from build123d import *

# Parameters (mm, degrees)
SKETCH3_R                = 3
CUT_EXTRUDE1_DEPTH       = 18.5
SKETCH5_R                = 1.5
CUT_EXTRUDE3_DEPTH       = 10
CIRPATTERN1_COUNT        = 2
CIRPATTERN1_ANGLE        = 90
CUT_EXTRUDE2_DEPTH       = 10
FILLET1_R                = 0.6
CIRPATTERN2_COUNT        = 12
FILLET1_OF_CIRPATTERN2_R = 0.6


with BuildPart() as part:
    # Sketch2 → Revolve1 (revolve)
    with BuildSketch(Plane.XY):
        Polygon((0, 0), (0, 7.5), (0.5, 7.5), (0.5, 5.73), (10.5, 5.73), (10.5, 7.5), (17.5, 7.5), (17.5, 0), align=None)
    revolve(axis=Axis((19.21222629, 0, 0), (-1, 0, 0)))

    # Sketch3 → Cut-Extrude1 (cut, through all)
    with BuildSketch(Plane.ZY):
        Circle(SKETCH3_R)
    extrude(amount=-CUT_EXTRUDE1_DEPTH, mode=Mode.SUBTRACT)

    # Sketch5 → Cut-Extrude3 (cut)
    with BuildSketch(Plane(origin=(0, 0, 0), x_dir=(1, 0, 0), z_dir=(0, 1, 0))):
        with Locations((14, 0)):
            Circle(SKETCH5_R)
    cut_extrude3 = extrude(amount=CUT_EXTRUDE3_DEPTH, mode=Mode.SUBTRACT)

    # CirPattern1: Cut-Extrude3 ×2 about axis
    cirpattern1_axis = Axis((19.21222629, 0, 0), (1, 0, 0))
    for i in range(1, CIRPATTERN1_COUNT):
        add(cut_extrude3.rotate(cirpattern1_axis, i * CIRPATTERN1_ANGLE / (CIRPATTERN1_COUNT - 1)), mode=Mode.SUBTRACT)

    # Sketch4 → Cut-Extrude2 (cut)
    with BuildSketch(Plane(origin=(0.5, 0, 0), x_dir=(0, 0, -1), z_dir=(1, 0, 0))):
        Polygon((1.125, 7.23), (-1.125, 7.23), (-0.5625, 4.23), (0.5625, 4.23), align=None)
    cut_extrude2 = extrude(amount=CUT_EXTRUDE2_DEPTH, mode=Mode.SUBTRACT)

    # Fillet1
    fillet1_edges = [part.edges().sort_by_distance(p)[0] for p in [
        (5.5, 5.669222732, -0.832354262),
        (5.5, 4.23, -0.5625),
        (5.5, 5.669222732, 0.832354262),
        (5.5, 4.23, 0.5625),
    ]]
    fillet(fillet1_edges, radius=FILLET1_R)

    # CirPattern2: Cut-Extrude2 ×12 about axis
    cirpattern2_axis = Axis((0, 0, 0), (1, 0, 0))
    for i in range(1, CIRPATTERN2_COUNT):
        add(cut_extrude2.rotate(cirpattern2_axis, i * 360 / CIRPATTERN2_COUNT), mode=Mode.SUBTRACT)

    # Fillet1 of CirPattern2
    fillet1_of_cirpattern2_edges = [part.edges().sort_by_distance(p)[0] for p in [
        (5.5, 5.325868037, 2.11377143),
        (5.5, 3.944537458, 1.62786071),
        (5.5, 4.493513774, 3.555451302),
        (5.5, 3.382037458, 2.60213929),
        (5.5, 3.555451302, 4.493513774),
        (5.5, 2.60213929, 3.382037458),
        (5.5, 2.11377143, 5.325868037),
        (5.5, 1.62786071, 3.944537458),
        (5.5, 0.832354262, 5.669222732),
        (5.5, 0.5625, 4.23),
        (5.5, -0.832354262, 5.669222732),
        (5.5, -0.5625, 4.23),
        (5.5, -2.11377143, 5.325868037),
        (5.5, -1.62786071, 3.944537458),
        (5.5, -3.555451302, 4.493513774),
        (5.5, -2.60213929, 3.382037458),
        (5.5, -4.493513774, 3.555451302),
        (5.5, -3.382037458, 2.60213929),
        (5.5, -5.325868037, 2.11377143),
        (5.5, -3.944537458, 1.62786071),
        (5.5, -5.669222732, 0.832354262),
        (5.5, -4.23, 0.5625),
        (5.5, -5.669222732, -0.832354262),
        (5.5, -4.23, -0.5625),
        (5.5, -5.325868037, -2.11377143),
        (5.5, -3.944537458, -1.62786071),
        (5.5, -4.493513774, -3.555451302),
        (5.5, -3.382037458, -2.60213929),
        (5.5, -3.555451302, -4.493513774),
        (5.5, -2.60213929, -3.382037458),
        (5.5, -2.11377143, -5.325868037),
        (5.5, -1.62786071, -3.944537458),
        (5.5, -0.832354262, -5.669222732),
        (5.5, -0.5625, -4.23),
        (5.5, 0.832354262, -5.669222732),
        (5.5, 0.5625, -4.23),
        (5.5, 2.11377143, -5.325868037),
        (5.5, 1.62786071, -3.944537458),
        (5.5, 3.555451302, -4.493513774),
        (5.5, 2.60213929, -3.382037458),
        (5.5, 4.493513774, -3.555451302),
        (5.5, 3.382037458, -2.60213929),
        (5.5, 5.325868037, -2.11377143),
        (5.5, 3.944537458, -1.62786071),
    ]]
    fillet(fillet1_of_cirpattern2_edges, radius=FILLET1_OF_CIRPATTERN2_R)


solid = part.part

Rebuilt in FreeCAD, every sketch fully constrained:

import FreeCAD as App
import Part
import Sketcher

V = App.Vector
Q = App.Units.Quantity


def edges_at(feature, points):
    """Names of the edges that pass closest to the given points."""
    edges = feature.Shape.Edges
    near = lambda p: min(range(len(edges)), key=lambda i: edges[i].distToShape(Part.Vertex(*p))[0])
    return sorted({f"Edge{near(p) + 1}" for p in points})


def add_polygon(sketch, points):
    """Adds a closed chain of lines whose ends are joined by coincident constraints."""
    first, n = sketch.GeometryCount, len(points)
    for a, b in zip(points, points[1:] + points[:1]):
        sketch.addGeometry(Part.LineSegment(App.Vector(*a, 0), App.Vector(*b, 0)), False)
    for i in range(n):
        sketch.addConstraint(Sketcher.Constraint("Coincident", first + i, 2, first + (i + 1) % n, 1))

doc = App.newDocument("Part")
body = doc.addObject("PartDesign::Body", "Body")

# Sketch on XY plane
sketch1 = doc.addObject("Sketcher::SketchObject", "Sketch")
body.addObject(sketch1)
sketch1.AttachmentSupport = (doc.XY_Plane, [""])
sketch1.MapMode = "FlatFace"
add_polygon(sketch1, [(0, 7.5), (0, 0), (17.5, 0), (17.5, 7.5), (10.5, 7.5), (10.5, 5.7), (0.5, 5.7), (0.5, 7.5)])  # lines 0-7
sketch1.addConstraint(Sketcher.Constraint("Vertical", 0))
sketch1.addConstraint(Sketcher.Constraint("Horizontal", 1))
sketch1.addConstraint(Sketcher.Constraint("Vertical", 2))
sketch1.addConstraint(Sketcher.Constraint("Horizontal", 3))
sketch1.addConstraint(Sketcher.Constraint("Vertical", 4))
sketch1.addConstraint(Sketcher.Constraint("Horizontal", 5))
sketch1.addConstraint(Sketcher.Constraint("Vertical", 6))
sketch1.addConstraint(Sketcher.Constraint("Horizontal", 7))
sketch1.addConstraint(Sketcher.Constraint("Coincident", 0, 2, -1, 1))
sketch1.addConstraint(Sketcher.Constraint("Horizontal", 3, 2, 6, 2))
sketch1.addConstraint(Sketcher.Constraint("DistanceX", 3, 2, 3, 1, Q("7 mm")))
sketch1.addConstraint(Sketcher.Constraint("DistanceX", 5, 2, 5, 1, Q("10 mm")))
sketch1.addConstraint(Sketcher.Constraint("DistanceX", 1, 1, 1, 2, Q("17.5 mm")))
sketch1.addConstraint(Sketcher.Constraint("DistanceY", 0, 2, 0, 1, Q("7.5 mm")))
sketch1.addConstraint(Sketcher.Constraint("DistanceY", 4, 2, 4, 1, Q("1.77 mm")))
revolution = doc.addObject("PartDesign::Revolution", "Revolution")
body.addObject(revolution)
revolution.Profile = sketch1
revolution.ReferenceAxis = (sketch1, ["H_Axis"])
revolution.Angle = 360

# Sketch on YZ plane
sketch2 = doc.addObject("Sketcher::SketchObject", "Sketch001")
body.addObject(sketch2)
sketch2.AttachmentSupport = (doc.YZ_Plane, [""])
sketch2.MapMode = "FlatFace"
sketch2.addGeometry(Part.Circle(V(0, 0, 0), V(0, 0, 1), 3), False)
sketch2.addConstraint(Sketcher.Constraint("Coincident", 0, 3, -1, 1))
sketch2.addConstraint(Sketcher.Constraint("Diameter", 0, Q("6 mm")))
pocket1 = doc.addObject("PartDesign::Pocket", "Pocket")
body.addObject(pocket1)
pocket1.Profile = sketch2
pocket1.Type = "ThroughAll"
pocket1.Reversed = True

# Sketch on XZ plane
sketch3 = doc.addObject("Sketcher::SketchObject", "Sketch002")
body.addObject(sketch3)
sketch3.AttachmentSupport = (doc.XZ_Plane, [""])
sketch3.MapMode = "FlatFace"
sketch3.addGeometry(Part.Circle(V(14, 0, 0), V(0, 0, 1), 1.5), False)
sketch3.addConstraint(Sketcher.Constraint("PointOnObject", 0, 3, -1))
sketch3.addConstraint(Sketcher.Constraint("Diameter", 0, Q("3 mm")))
sketch3.addConstraint(Sketcher.Constraint("DistanceX", -1, 1, 0, 3, Q("14 mm")))
pocket2 = doc.addObject("PartDesign::Pocket", "Pocket001")
body.addObject(pocket2)
pocket2.Profile = sketch3
pocket2.Length = 10
doc.recompute()

polarpattern = doc.addObject("PartDesign::PolarPattern", "PolarPattern")
body.addObject(polarpattern)
polarpattern.Originals = [pocket2]
polarpattern.Axis = (doc.X_Axis, [""])
polarpattern.Angle = 90
polarpattern.Occurrences = 2
body.Tip = polarpattern

# Sketch on YZ plane
sketch4 = doc.addObject("Sketcher::SketchObject", "Sketch003")
body.addObject(sketch4)
sketch4.AttachmentSupport = (doc.YZ_Plane, [""])
sketch4.MapMode = "FlatFace"
sketch4.AttachmentOffset = App.Placement(V(0, 0, 0.5), App.Rotation())
add_polygon(sketch4, [(7.2, -1.1), (7.2, 1.1), (4.2, 0.6), (4.2, -0.6)])  # lines 0-3
sketch4.addConstraint(Sketcher.Constraint("Vertical", 0))
sketch4.addConstraint(Sketcher.Constraint("Vertical", 2))
sketch4.addConstraint(Sketcher.Constraint("Equal", 1, 3))
sketch4.addConstraint(Sketcher.Constraint("DistanceX", 1, 2, 0, 2, Q("3 mm")))
sketch4.addConstraint(Sketcher.Constraint("DistanceY", 0, 1, 0, 2, Q("2.25 mm")))
sketch4.addConstraint(Sketcher.Constraint("DistanceY", 2, 2, 2, 1, Q("1.125 mm")))
sketch4.addConstraint(Sketcher.Constraint("DistanceX", -1, 1, 0, 2, Q("7.23 mm")))
sketch4.addConstraint(Sketcher.Constraint("DistanceY", -1, 1, 0, 2, Q("1.125 mm")))
pocket3 = doc.addObject("PartDesign::Pocket", "Pocket002")
body.addObject(pocket3)
pocket3.Profile = sketch4
pocket3.Length = 10
pocket3.Reversed = True
doc.recompute()

fillet = doc.addObject("PartDesign::Fillet", "Fillet")
body.addObject(fillet)
fillet.Base = (pocket3, edges_at(pocket3, [
    (5.5, 5.669, -0.832),
    (5.5, 4.23, -0.562),
    (5.5, 5.669, 0.832),
    (5.5, 4.23, 0.562),
]))
fillet.Radius = 0.6
doc.recompute()

polarpattern2 = doc.addObject("PartDesign::PolarPattern", "PolarPattern001")
body.addObject(polarpattern2)
polarpattern2.Originals = [pocket3]
polarpattern2.Axis = (doc.X_Axis, [""])
polarpattern2.Angle = 360
polarpattern2.Occurrences = 12
body.Tip = polarpattern2
doc.recompute()

fillet2 = doc.addObject("PartDesign::Fillet", "Fillet001")
body.addObject(fillet2)
fillet2.Base = (polarpattern2, edges_at(polarpattern2, [
    (5.5, 5.326, 2.114),
    (5.5, 3.945, 1.628),
    (5.5, 4.494, 3.555),
    (5.5, 3.382, 2.602),
    (5.5, 3.555, 4.494),
    (5.5, 2.602, 3.382),
    (5.5, 2.114, 5.326),
    (5.5, 1.628, 3.945),
    (5.5, 0.832, 5.669),
    (5.5, 0.562, 4.23),
    (5.5, -0.832, 5.669),
    (5.5, -0.562, 4.23),
    (5.5, -2.114, 5.326),
    (5.5, -1.628, 3.945),
    (5.5, -3.555, 4.494),
    (5.5, -2.602, 3.382),
    (5.5, -4.494, 3.555),
    (5.5, -3.382, 2.602),
    (5.5, -5.326, 2.114),
    (5.5, -3.945, 1.628),
    (5.5, -5.669, 0.832),
    (5.5, -4.23, 0.562),
    (5.5, -5.669, -0.832),
    (5.5, -4.23, -0.562),
    (5.5, -5.326, -2.114),
    (5.5, -3.945, -1.628),
    (5.5, -4.494, -3.555),
    (5.5, -3.382, -2.602),
    (5.5, -3.555, -4.494),
    (5.5, -2.602, -3.382),
    (5.5, -2.114, -5.326),
    (5.5, -1.628, -3.945),
    (5.5, -0.832, -5.669),
    (5.5, -0.562, -4.23),
    (5.5, 0.832, -5.669),
    (5.5, 0.562, -4.23),
    (5.5, 2.114, -5.326),
    (5.5, 1.628, -3.945),
    (5.5, 3.555, -4.494),
    (5.5, 2.602, -3.382),
    (5.5, 4.494, -3.555),
    (5.5, 3.382, -2.602),
    (5.5, 5.326, -2.114),
    (5.5, 3.945, -1.628),
]))
fillet2.Radius = 0.6

doc.recompute()
